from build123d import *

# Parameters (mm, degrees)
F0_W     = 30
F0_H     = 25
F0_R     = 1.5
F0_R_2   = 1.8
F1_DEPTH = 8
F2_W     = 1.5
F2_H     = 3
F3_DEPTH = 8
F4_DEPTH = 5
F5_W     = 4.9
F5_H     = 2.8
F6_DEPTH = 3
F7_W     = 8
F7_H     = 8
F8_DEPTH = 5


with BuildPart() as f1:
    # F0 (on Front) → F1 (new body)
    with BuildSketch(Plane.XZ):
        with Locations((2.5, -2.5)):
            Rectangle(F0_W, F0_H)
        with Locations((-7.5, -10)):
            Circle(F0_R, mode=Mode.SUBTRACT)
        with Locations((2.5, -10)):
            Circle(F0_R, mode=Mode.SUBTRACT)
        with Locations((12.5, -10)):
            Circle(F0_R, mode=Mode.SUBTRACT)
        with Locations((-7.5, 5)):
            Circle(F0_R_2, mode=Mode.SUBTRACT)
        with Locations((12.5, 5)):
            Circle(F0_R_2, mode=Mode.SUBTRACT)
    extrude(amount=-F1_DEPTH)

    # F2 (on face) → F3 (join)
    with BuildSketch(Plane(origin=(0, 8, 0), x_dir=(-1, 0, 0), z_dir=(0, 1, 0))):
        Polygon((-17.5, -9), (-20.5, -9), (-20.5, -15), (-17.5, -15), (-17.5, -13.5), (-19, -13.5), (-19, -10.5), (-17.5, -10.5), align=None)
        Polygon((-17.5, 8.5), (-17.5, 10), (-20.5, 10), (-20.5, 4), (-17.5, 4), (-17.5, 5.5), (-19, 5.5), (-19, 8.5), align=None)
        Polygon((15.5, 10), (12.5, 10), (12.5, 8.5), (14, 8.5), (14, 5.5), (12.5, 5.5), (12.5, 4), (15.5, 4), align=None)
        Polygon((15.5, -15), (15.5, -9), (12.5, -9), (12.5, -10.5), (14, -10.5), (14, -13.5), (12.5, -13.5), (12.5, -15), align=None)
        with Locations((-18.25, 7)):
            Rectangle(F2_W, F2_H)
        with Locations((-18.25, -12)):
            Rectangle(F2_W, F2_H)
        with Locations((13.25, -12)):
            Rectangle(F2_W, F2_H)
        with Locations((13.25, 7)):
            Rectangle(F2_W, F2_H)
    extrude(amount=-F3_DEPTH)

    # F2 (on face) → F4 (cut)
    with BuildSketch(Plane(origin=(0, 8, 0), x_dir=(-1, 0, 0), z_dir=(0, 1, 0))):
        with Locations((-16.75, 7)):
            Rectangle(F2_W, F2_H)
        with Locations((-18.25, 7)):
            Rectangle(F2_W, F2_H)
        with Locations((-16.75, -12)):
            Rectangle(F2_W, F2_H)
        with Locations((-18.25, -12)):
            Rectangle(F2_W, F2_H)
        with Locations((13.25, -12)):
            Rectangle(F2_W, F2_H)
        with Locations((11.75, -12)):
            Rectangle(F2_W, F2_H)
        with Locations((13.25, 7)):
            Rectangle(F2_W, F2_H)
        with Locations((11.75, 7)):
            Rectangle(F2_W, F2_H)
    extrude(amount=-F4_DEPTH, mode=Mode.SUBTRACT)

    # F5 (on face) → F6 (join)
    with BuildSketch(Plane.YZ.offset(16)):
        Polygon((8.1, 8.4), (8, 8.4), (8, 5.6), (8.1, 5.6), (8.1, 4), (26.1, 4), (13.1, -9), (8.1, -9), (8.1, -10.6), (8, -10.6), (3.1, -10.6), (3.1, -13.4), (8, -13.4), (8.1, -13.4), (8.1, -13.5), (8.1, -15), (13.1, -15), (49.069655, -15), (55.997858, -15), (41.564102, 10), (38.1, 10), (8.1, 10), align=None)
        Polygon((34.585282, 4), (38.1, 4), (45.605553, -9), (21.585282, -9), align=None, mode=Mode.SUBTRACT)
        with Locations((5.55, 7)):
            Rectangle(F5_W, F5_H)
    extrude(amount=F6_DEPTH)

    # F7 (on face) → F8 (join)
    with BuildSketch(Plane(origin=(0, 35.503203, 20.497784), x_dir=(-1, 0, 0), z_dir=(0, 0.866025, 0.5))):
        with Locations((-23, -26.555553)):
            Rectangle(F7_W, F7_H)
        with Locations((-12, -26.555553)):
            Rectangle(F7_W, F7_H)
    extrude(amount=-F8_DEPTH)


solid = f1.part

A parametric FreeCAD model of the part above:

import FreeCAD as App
import Part
import Sketcher
Q = App.Units.Quantity


def add_polygon(sketch, points):
    """Adds a closed chain of lines whose ends are joined by coincident constraints."""
    first, n = sketch.GeometryCount, len(points)
    for a, b in zip(points, points[1:] + points[:1]):
        sketch.addGeometry(Part.LineSegment(App.Vector(*a, 0), App.Vector(*b, 0)), False)
    for i in range(n):
        sketch.addConstraint(Sketcher.Constraint("Coincident", first + i, 2, first + (i + 1) % n, 1))

doc = App.newDocument("Part")
body = doc.addObject("PartDesign::Body", "Body")

# Sketch on XZ plane
sketch1 = body.newObject("Sketcher::SketchObject", "Sketch")
sketch1.AttachmentSupport = (doc.getObject("XZ_Plane"), [""])
sketch1.MapMode = "FlatFace"
add_polygon(sketch1, [(-12.5, 10), (-12.5, -15), (17.5, -15), (17.5, 10)])  # lines 0-3
sketch1.addGeometry(Part.Circle(App.Vector(-7.5, -10, 0), App.Vector(0, 0, 1), 1.5), False)  # 4
sketch1.addGeometry(Part.Circle(App.Vector(2.5, -10, 0), App.Vector(0, 0, 1), 1.5), False)  # 5
sketch1.addGeometry(Part.Circle(App.Vector(12.5, -10, 0), App.Vector(0, 0, 1), 1.5), False)  # 6
sketch1.addGeometry(Part.Circle(App.Vector(-7.5, 5, 0), App.Vector(0, 0, 1), 1.8), False)  # 7
sketch1.addGeometry(Part.Circle(App.Vector(12.5, 5, 0), App.Vector(0, 0, 1), 1.8), False)  # 8
sketch1.addConstraint(Sketcher.Constraint("Vertical", 0))
sketch1.addConstraint(Sketcher.Constraint("Horizontal", 1))
sketch1.addConstraint(Sketcher.Constraint("Vertical", 2))
sketch1.addConstraint(Sketcher.Constraint("Horizontal", 3))
sketch1.addConstraint(Sketcher.Constraint("Equal", 4, 5))
sketch1.addConstraint(Sketcher.Constraint("Equal", 5, 6))
sketch1.addConstraint(Sketcher.Constraint("Equal", 7, 8))
sketch1.addConstraint(Sketcher.Constraint("Horizontal", 4, 3, 5, 3))
sketch1.addConstraint(Sketcher.Constraint("Horizontal", 5, 3, 6, 3))
sketch1.addConstraint(Sketcher.Constraint("Horizontal", 7, 3, 8, 3))
sketch1.addConstraint(Sketcher.Constraint("Vertical", 4, 3, 7, 3))
sketch1.addConstraint(Sketcher.Constraint("Vertical", 6, 3, 8, 3))
sketch1.addConstraint(Sketcher.Constraint("Diameter", 4, 3.0))
sketch1.addConstraint(Sketcher.Constraint("Diameter", 7, 3.6))
sketch1.addConstraint(Sketcher.Constraint("DistanceX", 1, 1, 1, 2, 30.0))
sketch1.addConstraint(Sketcher.Constraint("DistanceY", 0, 2, 0, 1, 25.0))
sketch1.addConstraint(Sketcher.Constraint("DistanceY", 4, 3, -1, 1, 10.0))
sketch1.addConstraint(Sketcher.Constraint("DistanceY", -1, 1, 7, 3, 5.0))
sketch1.addConstraint(Sketcher.Constraint("DistanceY", 0, 2, -1, 1, 15.0))
sketch1.addConstraint(Sketcher.Constraint("DistanceX", 4, 3, 5, 3, 10.0))
sketch1.addConstraint(Sketcher.Constraint("DistanceX", 5, 3, 6, 3, 10.0))
sketch1.addConstraint(Sketcher.Constraint("DistanceX", 0, 2, 4, 3, 5.0))
sketch1.addConstraint(Sketcher.Constraint("DistanceX", 4, 3, -1, 1, 7.5))
pad1 = body.newObject("PartDesign::Pad", "Pad")
pad1.Profile = sketch1
pad1.Length = 8
pad1.Reversed = True

# Sketch on XZ plane
sketch2 = body.newObject("Sketcher::SketchObject", "Sketch001")
sketch2.AttachmentSupport = (doc.getObject("XZ_Plane"), [""])
sketch2.MapMode = "FlatFace"
sketch2.AttachmentOffset = App.Placement(App.Vector(0, 0, -8), App.Rotation())
add_polygon(sketch2, [(17.5, -9), (20.5, -9), (20.5, -15), (17.5, -15)])  # lines 0-3
add_polygon(sketch2, [(17.5, 10), (20.5, 10), (20.5, 4), (17.5, 4)])  # lines 4-7
add_polygon(sketch2, [(-15.5, 10), (-12.5, 10), (-12.5, 4), (-15.5, 4)])  # lines 8-11
add_polygon(sketch2, [(-15.5, -15), (-15.5, -9), (-12.5, -9), (-12.5, -15)])  # lines 12-15
sketch2.addConstraint(Sketcher.Constraint("Horizontal", 0))
sketch2.addConstraint(Sketcher.Constraint("Vertical", 1))
sketch2.addConstraint(Sketcher.Constraint("Horizontal", 2))
sketch2.addConstraint(Sketcher.Constraint("Vertical", 3))
sketch2.addConstraint(Sketcher.Constraint("Horizontal", 4))
sketch2.addConstraint(Sketcher.Constraint("Vertical", 5))
sketch2.addConstraint(Sketcher.Constraint("Horizontal", 6))
sketch2.addConstraint(Sketcher.Constraint("Vertical", 7))
sketch2.addConstraint(Sketcher.Constraint("Horizontal", 8))
sketch2.addConstraint(Sketcher.Constraint("Vertical", 9))
sketch2.addConstraint(Sketcher.Constraint("Horizontal", 10))
sketch2.addConstraint(Sketcher.Constraint("Vertical", 11))
sketch2.addConstraint(Sketcher.Constraint("Vertical", 12))
sketch2.addConstraint(Sketcher.Constraint("Horizontal", 13))
sketch2.addConstraint(Sketcher.Constraint("Vertical", 14))
sketch2.addConstraint(Sketcher.Constraint("Horizontal", 15))
sketch2.addConstraint(Sketcher.Constraint("Horizontal", 7, 2, 8, 2))
sketch2.addConstraint(Sketcher.Constraint("Horizontal", 6, 2, 9, 2))
sketch2.addConstraint(Sketcher.Constraint("Horizontal", 3, 2, 12, 2))
sketch2.addConstraint(Sketcher.Constraint("Horizontal", 2, 2, 14, 2))
sketch2.addConstraint(Sketcher.Constraint("Vertical", 1, 2, 4, 2))
sketch2.addConstraint(Sketcher.Constraint("Vertical", 3, 2, 6, 2))
sketch2.addConstraint(Sketcher.Constraint("Vertical", 11, 2, 12, 2))
sketch2.addConstraint(Sketcher.Constraint("Vertical", 9, 2, 13, 2))
sketch2.addConstraint(Sketcher.Constraint("Equal", 6, 8))
sketch2.addConstraint(Sketcher.Constraint("Equal", 3, 5))
sketch2.addConstraint(Sketcher.Constraint("DistanceX", 0, 1, 0, 2, 3.0))
sketch2.addConstraint(Sketcher.Constraint("DistanceY", 1, 2, 1, 1, 6.0))
sketch2.addConstraint(Sketcher.Constraint("DistanceY", 0, 2, -1, 1, 9.0))
sketch2.addConstraint(Sketcher.Constraint("DistanceY", -1, 1, 4, 2, 10.0))
sketch2.addConstraint(Sketcher.Constraint("DistanceX", 8, 2, 7, 2, 30.0))
sketch2.addConstraint(Sketcher.Constraint("DistanceX", -1, 1, 0, 2, 20.5))
pad2 = body.newObject("PartDesign::Pad", "Pad001")
pad2.Profile = sketch2
pad2.Length = 8

# Sketch on XZ plane
sketch3 = body.newObject("Sketcher::SketchObject", "Sketch002")
sketch3.AttachmentSupport = (doc.getObject("XZ_Plane"), [""])
sketch3.MapMode = "FlatFace"
sketch3.AttachmentOffset = App.Placement(App.Vector(0, 0, -8), App.Rotation())
add_polygon(sketch3, [(16, 5.5), (16, 8.5), (19, 8.5), (19, 5.5)])  # lines 0-3
add_polygon(sketch3, [(16, -13.5), (16, -10.5), (19, -10.5), (19, -13.5)])  # lines 4-7
add_polygon(sketch3, [(-14, -13.5), (-14, -10.5), (-11, -10.5), (-11, -13.5)])  # lines 8-11
add_polygon(sketch3, [(-14, 5.5), (-14, 8.5), (-11, 8.5), (-11, 5.5)])  # lines 12-15
sketch3.addConstraint(Sketcher.Constraint("Vertical", 0))
sketch3.addConstraint(Sketcher.Constraint("Horizontal", 1))
sketch3.addConstraint(Sketcher.Constraint("Vertical", 2))
sketch3.addConstraint(Sketcher.Constraint("Horizontal", 3))
sketch3.addConstraint(Sketcher.Constraint("Vertical", 4))
sketch3.addConstraint(Sketcher.Constraint("Horizontal", 5))
sketch3.addConstraint(Sketcher.Constraint("Vertical", 6))
sketch3.addConstraint(Sketcher.Constraint("Horizontal", 7))
sketch3.addConstraint(Sketcher.Constraint("Vertical", 8))
sketch3.addConstraint(Sketcher.Constraint("Horizontal", 9))
sketch3.addConstraint(Sketcher.Constraint("Vertical", 10))
sketch3.addConstraint(Sketcher.Constraint("Horizontal", 11))
sketch3.addConstraint(Sketcher.Constraint("Vertical", 12))
sketch3.addConstraint(Sketcher.Constraint("Horizontal", 13))
sketch3.addConstraint(Sketcher.Constraint("Vertical", 14))
sketch3.addConstraint(Sketcher.Constraint("Horizontal", 15))
sketch3.addConstraint(Sketcher.Constraint("Horizontal", 5, 2, 8, 2))
sketch3.addConstraint(Sketcher.Constraint("Horizontal", 7, 2, 10, 2))
sketch3.addConstraint(Sketcher.Constraint("Horizontal", 1, 2, 12, 2))
sketch3.addConstraint(Sketcher.Constraint("Horizontal", 3, 2, 14, 2))
sketch3.addConstraint(Sketcher.Constraint("Vertical", 3, 2, 4, 2))
sketch3.addConstraint(Sketcher.Constraint("Vertical", 2, 2, 5, 2))
sketch3.addConstraint(Sketcher.Constraint("Vertical", 11, 2, 12, 2))
sketch3.addConstraint(Sketcher.Constraint("Vertical", 10, 2, 13, 2))
sketch3.addConstraint(Sketcher.Constraint("Equal", 7, 9))
sketch3.addConstraint(Sketcher.Constraint("Equal", 15, 0))
sketch3.addConstraint(Sketcher.Constraint("Equal", 2, 4))
sketch3.addConstraint(Sketcher.Constraint("DistanceX", 1, 1, 1, 2, 3.0))
sketch3.addConstraint(Sketcher.Constraint("DistanceX", -1, 1, 0, 2, 16.0))
sketch3.addConstraint(Sketcher.Constraint("DistanceX", 8, 2, -1, 1, 14.0))
sketch3.addConstraint(Sketcher.Constraint("DistanceY", 4, 2, 3, 2, 16.0))
sketch3.addConstraint(Sketcher.Constraint("DistanceY", -1, 1, 0, 2, 8.5))
pocket1 = body.newObject("PartDesign::Pocket", "Pocket")
pocket1.Profile = sketch3
pocket1.Length = 5
pocket1.Reversed = True

# Sketch on YZ plane
sketch4 = body.newObject("Sketcher::SketchObject", "Sketch003")
sketch4.AttachmentSupport = (doc.getObject("YZ_Plane"), [""])
sketch4.MapMode = "FlatFace"
sketch4.AttachmentOffset = App.Placement(App.Vector(0, 0, 16), App.Rotation())
add_polygon(sketch4, [(8.1, 8.4), (3.1, 8.4), (3.1, 5.6), (8.1, 5.6), (8.1, 4), (26.1, 4), (13.1, -9), (8.1, -9), (8.1, -10.6), (3.1, -10.6), (3.1, -13.4), (8.1, -13.4), (8.1, -15), (55.997858, -15), (41.564102, 10), (8.1, 10)])  # lines 0-15
add_polygon(sketch4, [(21.585282, -9), (34.585282, 4), (38.1, 4), (45.605553, -9)])  # lines 16-19
sketch4.addConstraint(Sketcher.Constraint("Horizontal", 0))
sketch4.addConstraint(Sketcher.Constraint("Vertical", 1))
sketch4.addConstraint(Sketcher.Constraint("Horizontal", 2))
sketch4.addConstraint(Sketcher.Constraint("Vertical", 3))
sketch4.addConstraint(Sketcher.Constraint("Horizontal", 4))
sketch4.addConstraint(Sketcher.Constraint("Horizontal", 6))
sketch4.addConstraint(Sketcher.Constraint("Vertical", 7))
sketch4.addConstraint(Sketcher.Constraint("Horizontal", 8))
sketch4.addConstraint(Sketcher.Constraint("Vertical", 9))
sketch4.addConstraint(Sketcher.Constraint("Horizontal", 10))
sketch4.addConstraint(Sketcher.Constraint("Vertical", 11))
sketch4.addConstraint(Sketcher.Constraint("Horizontal", 12))
sketch4.addConstraint(Sketcher.Constraint("Horizontal", 14))
sketch4.addConstraint(Sketcher.Constraint("Vertical", 15))
sketch4.addConstraint(Sketcher.Constraint("Horizontal", 17))
sketch4.addConstraint(Sketcher.Constraint("Horizontal", 19))
sketch4.addConstraint(Sketcher.Constraint("Parallel", 5, 16))
sketch4.addConstraint(Sketcher.Constraint("Parallel", 13, 18))
sketch4.addConstraint(Sketcher.Constraint("Horizontal", 4, 2, 16, 2))
sketch4.addConstraint(Sketcher.Constraint("Horizontal", 6, 2, 18, 2))
sketch4.addConstraint(Sketcher.Constraint("Vertical", 3, 2, 6, 2))
sketch4.addConstraint(Sketcher.Constraint("Vertical", 1, 2, 8, 2))
sketch4.addConstraint(Sketcher.Constraint("Vertical", 7, 2, 10, 2))
sketch4.addConstraint(Sketcher.Constraint("Vertical", 11, 2, 14, 2))
sketch4.addConstraint(Sketcher.Constraint("Equal", 2, 6))
sketch4.addConstraint(Sketcher.Constraint("Equal", 3, 7))
sketch4.addConstraint(Sketcher.Constraint("Equal", 1, 9))
sketch4.addConstraint(Sketcher.Constraint("Equal", 7, 11))
sketch4.addConstraint(Sketcher.Constraint("Equal", 11, 15))
sketch4.addConstraint(Sketcher.Constraint("DistanceX", 0, 2, 0, 1, 5.0))
sketch4.addConstraint(Sketcher.Constraint("DistanceX", 4, 1, 4, 2, 18.0))
sketch4.addConstraint(Sketcher.Constraint("Angle", 5, Q("-135 deg")))
sketch4.addConstraint(Sketcher.Constraint("Angle", 13, Q("119.999999 deg")))
sketch4.addConstraint(Sketcher.Constraint("DistanceY", 1, 2, 1, 1, 2.8))
sketch4.addConstraint(Sketcher.Constraint("DistanceY", 3, 2, 3, 1, 1.6))
sketch4.addConstraint(Sketcher.Constraint("DistanceY", -1, 1, 3, 2, 4.0))
sketch4.addConstraint(Sketcher.Constraint("DistanceX", 4, 2, 17, 2, 12.0))
sketch4.addConstraint(Sketcher.Constraint("DistanceX", -1, 1, 0, 2, 3.1))
sketch4.addConstraint(Sketcher.Constraint("DistanceX", 14, 2, 14, 1, 33.464102))
sketch4.addConstraint(Sketcher.Constraint("DistanceX", 17, 1, 17, 2, 3.514718))
pad3 = body.newObject("PartDesign::Pad", "Pad002")
pad3.Profile = sketch4
pad3.Length = 3

# Sketch on an angled plane
sketch5 = body.newObject("Sketcher::SketchObject", "Sketch004")
sketch5.Placement = App.Placement(App.Vector(0, 35.503203, 20.497784), App.Rotation(App.Vector(-1, 0, 0), App.Vector(0, -0.500000175, 0.866025303), App.Vector(0, 0.866025303, 0.500000175), "ZXY"))
add_polygon(sketch5, [(-27, -22.555553), (-27, -30.555553), (-19, -30.555553), (-19, -22.555553)])  # lines 0-3
add_polygon(sketch5, [(-16, -22.555553), (-16, -30.555553), (-8, -30.555553), (-8, -22.555553)])  # lines 4-7
sketch5.addConstraint(Sketcher.Constraint("Vertical", 0))
sketch5.addConstraint(Sketcher.Constraint("Horizontal", 1))
sketch5.addConstraint(Sketcher.Constraint("Vertical", 2))
sketch5.addConstraint(Sketcher.Constraint("Horizontal", 3))
sketch5.addConstraint(Sketcher.Constraint("Vertical", 4))
sketch5.addConstraint(Sketcher.Constraint("Horizontal", 5))
sketch5.addConstraint(Sketcher.Constraint("Vertical", 6))
sketch5.addConstraint(Sketcher.Constraint("Horizontal", 7))
sketch5.addConstraint(Sketcher.Constraint("Horizontal", 1, 2, 4, 2))
sketch5.addConstraint(Sketcher.Constraint("Horizontal", 3, 2, 6, 2))
sketch5.addConstraint(Sketcher.Constraint("Equal", 3, 5))
sketch5.addConstraint(Sketcher.Constraint("Equal", 7, 0))
sketch5.addConstraint(Sketcher.Constraint("DistanceX", 1, 1, 1, 2, 8.0))
sketch5.addConstraint(Sketcher.Constraint("DistanceX", 0, 2, -1, 1, 27.0))
sketch5.addConstraint(Sketcher.Constraint("DistanceX", 4, 2, -1, 1, 16.0))
sketch5.addConstraint(Sketcher.Constraint("DistanceY", 0, 2, -1, 1, 30.555553))
pad4 = body.newObject("PartDesign::Pad", "Pad003")
pad4.Profile = sketch5
pad4.Length = 5
pad4.Reversed = True

doc.recompute()
